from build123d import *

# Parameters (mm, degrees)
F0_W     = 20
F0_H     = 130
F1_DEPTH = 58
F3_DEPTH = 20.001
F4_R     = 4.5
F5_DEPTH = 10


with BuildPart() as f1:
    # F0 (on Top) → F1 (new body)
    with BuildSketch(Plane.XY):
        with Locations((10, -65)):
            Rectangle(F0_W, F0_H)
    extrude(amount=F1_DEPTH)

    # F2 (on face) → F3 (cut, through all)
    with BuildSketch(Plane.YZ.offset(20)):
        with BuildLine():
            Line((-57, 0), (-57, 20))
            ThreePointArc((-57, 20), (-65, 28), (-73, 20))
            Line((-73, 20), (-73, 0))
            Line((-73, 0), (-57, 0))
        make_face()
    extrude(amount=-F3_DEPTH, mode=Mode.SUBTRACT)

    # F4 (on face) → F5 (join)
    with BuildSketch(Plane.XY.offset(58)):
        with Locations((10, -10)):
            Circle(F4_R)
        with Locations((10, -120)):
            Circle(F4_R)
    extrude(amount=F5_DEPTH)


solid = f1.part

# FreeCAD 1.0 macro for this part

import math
import FreeCAD as App
import Part
import Sketcher
from FreeCAD import Vector

doc = App.newDocument("Part")
params = doc.addObject("Spreadsheet::Sheet", "Params")
for row, (alias, value) in enumerate([
    ("sketch1_width", "20 mm"),
    ("sketch1_height", "130 mm"),
    ("pad1_length", "58 mm"),
    ("sketch2_radius", "8 mm"),
    ("sketch2_height", "20 mm"),
    ("sketch3_diameter", "9 mm"),
    ("pad2_length", "10 mm"),
], start=1):
    params.set(f"A{row}", alias)
    params.set(f"B{row}", "=" + value)
    params.setAlias(f"B{row}", alias)

body = doc.addObject("PartDesign::Body", "Body")

sketch1 = doc.addObject("Sketcher::SketchObject", "Sketch")
body.addObject(sketch1)
sketch1.AttachmentSupport = (doc.XY_Plane, [""])
sketch1.MapMode = "FlatFace"
sketch1.addGeometry([
    Part.LineSegment(Vector(0, 0, 0), Vector(0, -130, 0)),
    Part.LineSegment(Vector(0, -130, 0), Vector(20, -130, 0)),
    Part.LineSegment(Vector(20, -130, 0), Vector(20, 0, 0)),
    Part.LineSegment(Vector(20, 0, 0), Vector(0, 0, 0)),
], False)
sketch1.addConstraint([
    Sketcher.Constraint("Coincident", 0, 2, 1, 1),
    Sketcher.Constraint("Coincident", 1, 2, 2, 1),
    Sketcher.Constraint("Coincident", 2, 2, 3, 1),
    Sketcher.Constraint("Coincident", 3, 2, 0, 1),
    Sketcher.Constraint("Vertical", 0),
    Sketcher.Constraint("Horizontal", 1),
    Sketcher.Constraint("Vertical", 2),
    Sketcher.Constraint("Horizontal", 3),
    Sketcher.Constraint("Coincident", 3, 2, -1, 1),
    Sketcher.Constraint("DistanceX", 1, 1, 1, 2, 20.0),
    Sketcher.Constraint("DistanceY", 0, 2, 0, 1, 130.0),
])
sketch1.setExpression("Constraints[9]", "Params.sketch1_width")
sketch1.setExpression("Constraints[10]", "Params.sketch1_height")
pad1 = doc.addObject("PartDesign::Pad", "Pad")
body.addObject(pad1)
pad1.Profile = sketch1
pad1.setExpression("Length", "Params.pad1_length")

sketch2 = doc.addObject("Sketcher::SketchObject", "Sketch001")
body.addObject(sketch2)
sketch2.AttachmentSupport = (doc.YZ_Plane, [""])
sketch2.MapMode = "FlatFace"
sketch2.AttachmentOffset = App.Placement(Vector(0, 0, 20), App.Rotation())
sketch2.addGeometry([
    Part.LineSegment(Vector(-57, 0, 0), Vector(-57, 20, 0)),
    Part.ArcOfCircle(Part.Circle(Vector(-65, 20, 0), Vector(0, 0, 1), 8), math.radians(0), math.radians(180)),
    Part.LineSegment(Vector(-73, 20, 0), Vector(-73, 0, 0)),
    Part.LineSegment(Vector(-73, 0, 0), Vector(-57, 0, 0)),
], False)
sketch2.addConstraint([
    Sketcher.Constraint("Tangent", 0, 2, 1, 1),
    Sketcher.Constraint("Tangent", 1, 2, 2, 1),
    Sketcher.Constraint("Coincident", 2, 2, 3, 1),
    Sketcher.Constraint("Coincident", 3, 2, 0, 1),
    Sketcher.Constraint("Vertical", 0),
    Sketcher.Constraint("Vertical", 2),
    Sketcher.Constraint("Horizontal", 3),
    Sketcher.Constraint("PointOnObject", 2, 2, -1),
    Sketcher.Constraint("Radius", 1, 8.0),
    Sketcher.Constraint("DistanceY", 0, 1, 0, 2, 20.0),
    Sketcher.Constraint("DistanceX", 1, 3, -1, 1, 65.0),
])
sketch2.setExpression("Constraints[8]", "Params.sketch2_radius")
sketch2.setExpression("Constraints[9]", "Params.sketch2_height")
pocket1 = doc.addObject("PartDesign::Pocket", "Pocket")
body.addObject(pocket1)
pocket1.Profile = sketch2
pocket1.Type = "ThroughAll"

sketch3 = doc.addObject("Sketcher::SketchObject", "Sketch002")
body.addObject(sketch3)
sketch3.AttachmentSupport = (doc.XY_Plane, [""])
sketch3.MapMode = "FlatFace"
sketch3.AttachmentOffset = App.Placement(Vector(0, 0, 58), App.Rotation())
sketch3.addGeometry([
    Part.Circle(Vector(10, -10, 0), Vector(0, 0, 1), 4.5),
    Part.Circle(Vector(10, -120, 0), Vector(0, 0, 1), 4.5),
], False)
sketch3.addConstraint([
    Sketcher.Constraint("Equal", 0, 1),
    Sketcher.Constraint("Vertical", 0, 3, 1, 3),
    Sketcher.Constraint("Diameter", 0, 9.0),
    Sketcher.Constraint("DistanceX", -1, 1, 0, 3, 10.0),
    Sketcher.Constraint("DistanceY", 0, 3, -1, 1, 10.0),
    Sketcher.Constraint("DistanceY", 1, 3, -1, 1, 120.0),
])
sketch3.setExpression("Constraints[2]", "Params.sketch3_diameter")
pad2 = doc.addObject("PartDesign::Pad", "Pad001")
body.addObject(pad2)
pad2.Profile = sketch3
pad2.setExpression("Length", "Params.pad2_length")

doc.recompute()
